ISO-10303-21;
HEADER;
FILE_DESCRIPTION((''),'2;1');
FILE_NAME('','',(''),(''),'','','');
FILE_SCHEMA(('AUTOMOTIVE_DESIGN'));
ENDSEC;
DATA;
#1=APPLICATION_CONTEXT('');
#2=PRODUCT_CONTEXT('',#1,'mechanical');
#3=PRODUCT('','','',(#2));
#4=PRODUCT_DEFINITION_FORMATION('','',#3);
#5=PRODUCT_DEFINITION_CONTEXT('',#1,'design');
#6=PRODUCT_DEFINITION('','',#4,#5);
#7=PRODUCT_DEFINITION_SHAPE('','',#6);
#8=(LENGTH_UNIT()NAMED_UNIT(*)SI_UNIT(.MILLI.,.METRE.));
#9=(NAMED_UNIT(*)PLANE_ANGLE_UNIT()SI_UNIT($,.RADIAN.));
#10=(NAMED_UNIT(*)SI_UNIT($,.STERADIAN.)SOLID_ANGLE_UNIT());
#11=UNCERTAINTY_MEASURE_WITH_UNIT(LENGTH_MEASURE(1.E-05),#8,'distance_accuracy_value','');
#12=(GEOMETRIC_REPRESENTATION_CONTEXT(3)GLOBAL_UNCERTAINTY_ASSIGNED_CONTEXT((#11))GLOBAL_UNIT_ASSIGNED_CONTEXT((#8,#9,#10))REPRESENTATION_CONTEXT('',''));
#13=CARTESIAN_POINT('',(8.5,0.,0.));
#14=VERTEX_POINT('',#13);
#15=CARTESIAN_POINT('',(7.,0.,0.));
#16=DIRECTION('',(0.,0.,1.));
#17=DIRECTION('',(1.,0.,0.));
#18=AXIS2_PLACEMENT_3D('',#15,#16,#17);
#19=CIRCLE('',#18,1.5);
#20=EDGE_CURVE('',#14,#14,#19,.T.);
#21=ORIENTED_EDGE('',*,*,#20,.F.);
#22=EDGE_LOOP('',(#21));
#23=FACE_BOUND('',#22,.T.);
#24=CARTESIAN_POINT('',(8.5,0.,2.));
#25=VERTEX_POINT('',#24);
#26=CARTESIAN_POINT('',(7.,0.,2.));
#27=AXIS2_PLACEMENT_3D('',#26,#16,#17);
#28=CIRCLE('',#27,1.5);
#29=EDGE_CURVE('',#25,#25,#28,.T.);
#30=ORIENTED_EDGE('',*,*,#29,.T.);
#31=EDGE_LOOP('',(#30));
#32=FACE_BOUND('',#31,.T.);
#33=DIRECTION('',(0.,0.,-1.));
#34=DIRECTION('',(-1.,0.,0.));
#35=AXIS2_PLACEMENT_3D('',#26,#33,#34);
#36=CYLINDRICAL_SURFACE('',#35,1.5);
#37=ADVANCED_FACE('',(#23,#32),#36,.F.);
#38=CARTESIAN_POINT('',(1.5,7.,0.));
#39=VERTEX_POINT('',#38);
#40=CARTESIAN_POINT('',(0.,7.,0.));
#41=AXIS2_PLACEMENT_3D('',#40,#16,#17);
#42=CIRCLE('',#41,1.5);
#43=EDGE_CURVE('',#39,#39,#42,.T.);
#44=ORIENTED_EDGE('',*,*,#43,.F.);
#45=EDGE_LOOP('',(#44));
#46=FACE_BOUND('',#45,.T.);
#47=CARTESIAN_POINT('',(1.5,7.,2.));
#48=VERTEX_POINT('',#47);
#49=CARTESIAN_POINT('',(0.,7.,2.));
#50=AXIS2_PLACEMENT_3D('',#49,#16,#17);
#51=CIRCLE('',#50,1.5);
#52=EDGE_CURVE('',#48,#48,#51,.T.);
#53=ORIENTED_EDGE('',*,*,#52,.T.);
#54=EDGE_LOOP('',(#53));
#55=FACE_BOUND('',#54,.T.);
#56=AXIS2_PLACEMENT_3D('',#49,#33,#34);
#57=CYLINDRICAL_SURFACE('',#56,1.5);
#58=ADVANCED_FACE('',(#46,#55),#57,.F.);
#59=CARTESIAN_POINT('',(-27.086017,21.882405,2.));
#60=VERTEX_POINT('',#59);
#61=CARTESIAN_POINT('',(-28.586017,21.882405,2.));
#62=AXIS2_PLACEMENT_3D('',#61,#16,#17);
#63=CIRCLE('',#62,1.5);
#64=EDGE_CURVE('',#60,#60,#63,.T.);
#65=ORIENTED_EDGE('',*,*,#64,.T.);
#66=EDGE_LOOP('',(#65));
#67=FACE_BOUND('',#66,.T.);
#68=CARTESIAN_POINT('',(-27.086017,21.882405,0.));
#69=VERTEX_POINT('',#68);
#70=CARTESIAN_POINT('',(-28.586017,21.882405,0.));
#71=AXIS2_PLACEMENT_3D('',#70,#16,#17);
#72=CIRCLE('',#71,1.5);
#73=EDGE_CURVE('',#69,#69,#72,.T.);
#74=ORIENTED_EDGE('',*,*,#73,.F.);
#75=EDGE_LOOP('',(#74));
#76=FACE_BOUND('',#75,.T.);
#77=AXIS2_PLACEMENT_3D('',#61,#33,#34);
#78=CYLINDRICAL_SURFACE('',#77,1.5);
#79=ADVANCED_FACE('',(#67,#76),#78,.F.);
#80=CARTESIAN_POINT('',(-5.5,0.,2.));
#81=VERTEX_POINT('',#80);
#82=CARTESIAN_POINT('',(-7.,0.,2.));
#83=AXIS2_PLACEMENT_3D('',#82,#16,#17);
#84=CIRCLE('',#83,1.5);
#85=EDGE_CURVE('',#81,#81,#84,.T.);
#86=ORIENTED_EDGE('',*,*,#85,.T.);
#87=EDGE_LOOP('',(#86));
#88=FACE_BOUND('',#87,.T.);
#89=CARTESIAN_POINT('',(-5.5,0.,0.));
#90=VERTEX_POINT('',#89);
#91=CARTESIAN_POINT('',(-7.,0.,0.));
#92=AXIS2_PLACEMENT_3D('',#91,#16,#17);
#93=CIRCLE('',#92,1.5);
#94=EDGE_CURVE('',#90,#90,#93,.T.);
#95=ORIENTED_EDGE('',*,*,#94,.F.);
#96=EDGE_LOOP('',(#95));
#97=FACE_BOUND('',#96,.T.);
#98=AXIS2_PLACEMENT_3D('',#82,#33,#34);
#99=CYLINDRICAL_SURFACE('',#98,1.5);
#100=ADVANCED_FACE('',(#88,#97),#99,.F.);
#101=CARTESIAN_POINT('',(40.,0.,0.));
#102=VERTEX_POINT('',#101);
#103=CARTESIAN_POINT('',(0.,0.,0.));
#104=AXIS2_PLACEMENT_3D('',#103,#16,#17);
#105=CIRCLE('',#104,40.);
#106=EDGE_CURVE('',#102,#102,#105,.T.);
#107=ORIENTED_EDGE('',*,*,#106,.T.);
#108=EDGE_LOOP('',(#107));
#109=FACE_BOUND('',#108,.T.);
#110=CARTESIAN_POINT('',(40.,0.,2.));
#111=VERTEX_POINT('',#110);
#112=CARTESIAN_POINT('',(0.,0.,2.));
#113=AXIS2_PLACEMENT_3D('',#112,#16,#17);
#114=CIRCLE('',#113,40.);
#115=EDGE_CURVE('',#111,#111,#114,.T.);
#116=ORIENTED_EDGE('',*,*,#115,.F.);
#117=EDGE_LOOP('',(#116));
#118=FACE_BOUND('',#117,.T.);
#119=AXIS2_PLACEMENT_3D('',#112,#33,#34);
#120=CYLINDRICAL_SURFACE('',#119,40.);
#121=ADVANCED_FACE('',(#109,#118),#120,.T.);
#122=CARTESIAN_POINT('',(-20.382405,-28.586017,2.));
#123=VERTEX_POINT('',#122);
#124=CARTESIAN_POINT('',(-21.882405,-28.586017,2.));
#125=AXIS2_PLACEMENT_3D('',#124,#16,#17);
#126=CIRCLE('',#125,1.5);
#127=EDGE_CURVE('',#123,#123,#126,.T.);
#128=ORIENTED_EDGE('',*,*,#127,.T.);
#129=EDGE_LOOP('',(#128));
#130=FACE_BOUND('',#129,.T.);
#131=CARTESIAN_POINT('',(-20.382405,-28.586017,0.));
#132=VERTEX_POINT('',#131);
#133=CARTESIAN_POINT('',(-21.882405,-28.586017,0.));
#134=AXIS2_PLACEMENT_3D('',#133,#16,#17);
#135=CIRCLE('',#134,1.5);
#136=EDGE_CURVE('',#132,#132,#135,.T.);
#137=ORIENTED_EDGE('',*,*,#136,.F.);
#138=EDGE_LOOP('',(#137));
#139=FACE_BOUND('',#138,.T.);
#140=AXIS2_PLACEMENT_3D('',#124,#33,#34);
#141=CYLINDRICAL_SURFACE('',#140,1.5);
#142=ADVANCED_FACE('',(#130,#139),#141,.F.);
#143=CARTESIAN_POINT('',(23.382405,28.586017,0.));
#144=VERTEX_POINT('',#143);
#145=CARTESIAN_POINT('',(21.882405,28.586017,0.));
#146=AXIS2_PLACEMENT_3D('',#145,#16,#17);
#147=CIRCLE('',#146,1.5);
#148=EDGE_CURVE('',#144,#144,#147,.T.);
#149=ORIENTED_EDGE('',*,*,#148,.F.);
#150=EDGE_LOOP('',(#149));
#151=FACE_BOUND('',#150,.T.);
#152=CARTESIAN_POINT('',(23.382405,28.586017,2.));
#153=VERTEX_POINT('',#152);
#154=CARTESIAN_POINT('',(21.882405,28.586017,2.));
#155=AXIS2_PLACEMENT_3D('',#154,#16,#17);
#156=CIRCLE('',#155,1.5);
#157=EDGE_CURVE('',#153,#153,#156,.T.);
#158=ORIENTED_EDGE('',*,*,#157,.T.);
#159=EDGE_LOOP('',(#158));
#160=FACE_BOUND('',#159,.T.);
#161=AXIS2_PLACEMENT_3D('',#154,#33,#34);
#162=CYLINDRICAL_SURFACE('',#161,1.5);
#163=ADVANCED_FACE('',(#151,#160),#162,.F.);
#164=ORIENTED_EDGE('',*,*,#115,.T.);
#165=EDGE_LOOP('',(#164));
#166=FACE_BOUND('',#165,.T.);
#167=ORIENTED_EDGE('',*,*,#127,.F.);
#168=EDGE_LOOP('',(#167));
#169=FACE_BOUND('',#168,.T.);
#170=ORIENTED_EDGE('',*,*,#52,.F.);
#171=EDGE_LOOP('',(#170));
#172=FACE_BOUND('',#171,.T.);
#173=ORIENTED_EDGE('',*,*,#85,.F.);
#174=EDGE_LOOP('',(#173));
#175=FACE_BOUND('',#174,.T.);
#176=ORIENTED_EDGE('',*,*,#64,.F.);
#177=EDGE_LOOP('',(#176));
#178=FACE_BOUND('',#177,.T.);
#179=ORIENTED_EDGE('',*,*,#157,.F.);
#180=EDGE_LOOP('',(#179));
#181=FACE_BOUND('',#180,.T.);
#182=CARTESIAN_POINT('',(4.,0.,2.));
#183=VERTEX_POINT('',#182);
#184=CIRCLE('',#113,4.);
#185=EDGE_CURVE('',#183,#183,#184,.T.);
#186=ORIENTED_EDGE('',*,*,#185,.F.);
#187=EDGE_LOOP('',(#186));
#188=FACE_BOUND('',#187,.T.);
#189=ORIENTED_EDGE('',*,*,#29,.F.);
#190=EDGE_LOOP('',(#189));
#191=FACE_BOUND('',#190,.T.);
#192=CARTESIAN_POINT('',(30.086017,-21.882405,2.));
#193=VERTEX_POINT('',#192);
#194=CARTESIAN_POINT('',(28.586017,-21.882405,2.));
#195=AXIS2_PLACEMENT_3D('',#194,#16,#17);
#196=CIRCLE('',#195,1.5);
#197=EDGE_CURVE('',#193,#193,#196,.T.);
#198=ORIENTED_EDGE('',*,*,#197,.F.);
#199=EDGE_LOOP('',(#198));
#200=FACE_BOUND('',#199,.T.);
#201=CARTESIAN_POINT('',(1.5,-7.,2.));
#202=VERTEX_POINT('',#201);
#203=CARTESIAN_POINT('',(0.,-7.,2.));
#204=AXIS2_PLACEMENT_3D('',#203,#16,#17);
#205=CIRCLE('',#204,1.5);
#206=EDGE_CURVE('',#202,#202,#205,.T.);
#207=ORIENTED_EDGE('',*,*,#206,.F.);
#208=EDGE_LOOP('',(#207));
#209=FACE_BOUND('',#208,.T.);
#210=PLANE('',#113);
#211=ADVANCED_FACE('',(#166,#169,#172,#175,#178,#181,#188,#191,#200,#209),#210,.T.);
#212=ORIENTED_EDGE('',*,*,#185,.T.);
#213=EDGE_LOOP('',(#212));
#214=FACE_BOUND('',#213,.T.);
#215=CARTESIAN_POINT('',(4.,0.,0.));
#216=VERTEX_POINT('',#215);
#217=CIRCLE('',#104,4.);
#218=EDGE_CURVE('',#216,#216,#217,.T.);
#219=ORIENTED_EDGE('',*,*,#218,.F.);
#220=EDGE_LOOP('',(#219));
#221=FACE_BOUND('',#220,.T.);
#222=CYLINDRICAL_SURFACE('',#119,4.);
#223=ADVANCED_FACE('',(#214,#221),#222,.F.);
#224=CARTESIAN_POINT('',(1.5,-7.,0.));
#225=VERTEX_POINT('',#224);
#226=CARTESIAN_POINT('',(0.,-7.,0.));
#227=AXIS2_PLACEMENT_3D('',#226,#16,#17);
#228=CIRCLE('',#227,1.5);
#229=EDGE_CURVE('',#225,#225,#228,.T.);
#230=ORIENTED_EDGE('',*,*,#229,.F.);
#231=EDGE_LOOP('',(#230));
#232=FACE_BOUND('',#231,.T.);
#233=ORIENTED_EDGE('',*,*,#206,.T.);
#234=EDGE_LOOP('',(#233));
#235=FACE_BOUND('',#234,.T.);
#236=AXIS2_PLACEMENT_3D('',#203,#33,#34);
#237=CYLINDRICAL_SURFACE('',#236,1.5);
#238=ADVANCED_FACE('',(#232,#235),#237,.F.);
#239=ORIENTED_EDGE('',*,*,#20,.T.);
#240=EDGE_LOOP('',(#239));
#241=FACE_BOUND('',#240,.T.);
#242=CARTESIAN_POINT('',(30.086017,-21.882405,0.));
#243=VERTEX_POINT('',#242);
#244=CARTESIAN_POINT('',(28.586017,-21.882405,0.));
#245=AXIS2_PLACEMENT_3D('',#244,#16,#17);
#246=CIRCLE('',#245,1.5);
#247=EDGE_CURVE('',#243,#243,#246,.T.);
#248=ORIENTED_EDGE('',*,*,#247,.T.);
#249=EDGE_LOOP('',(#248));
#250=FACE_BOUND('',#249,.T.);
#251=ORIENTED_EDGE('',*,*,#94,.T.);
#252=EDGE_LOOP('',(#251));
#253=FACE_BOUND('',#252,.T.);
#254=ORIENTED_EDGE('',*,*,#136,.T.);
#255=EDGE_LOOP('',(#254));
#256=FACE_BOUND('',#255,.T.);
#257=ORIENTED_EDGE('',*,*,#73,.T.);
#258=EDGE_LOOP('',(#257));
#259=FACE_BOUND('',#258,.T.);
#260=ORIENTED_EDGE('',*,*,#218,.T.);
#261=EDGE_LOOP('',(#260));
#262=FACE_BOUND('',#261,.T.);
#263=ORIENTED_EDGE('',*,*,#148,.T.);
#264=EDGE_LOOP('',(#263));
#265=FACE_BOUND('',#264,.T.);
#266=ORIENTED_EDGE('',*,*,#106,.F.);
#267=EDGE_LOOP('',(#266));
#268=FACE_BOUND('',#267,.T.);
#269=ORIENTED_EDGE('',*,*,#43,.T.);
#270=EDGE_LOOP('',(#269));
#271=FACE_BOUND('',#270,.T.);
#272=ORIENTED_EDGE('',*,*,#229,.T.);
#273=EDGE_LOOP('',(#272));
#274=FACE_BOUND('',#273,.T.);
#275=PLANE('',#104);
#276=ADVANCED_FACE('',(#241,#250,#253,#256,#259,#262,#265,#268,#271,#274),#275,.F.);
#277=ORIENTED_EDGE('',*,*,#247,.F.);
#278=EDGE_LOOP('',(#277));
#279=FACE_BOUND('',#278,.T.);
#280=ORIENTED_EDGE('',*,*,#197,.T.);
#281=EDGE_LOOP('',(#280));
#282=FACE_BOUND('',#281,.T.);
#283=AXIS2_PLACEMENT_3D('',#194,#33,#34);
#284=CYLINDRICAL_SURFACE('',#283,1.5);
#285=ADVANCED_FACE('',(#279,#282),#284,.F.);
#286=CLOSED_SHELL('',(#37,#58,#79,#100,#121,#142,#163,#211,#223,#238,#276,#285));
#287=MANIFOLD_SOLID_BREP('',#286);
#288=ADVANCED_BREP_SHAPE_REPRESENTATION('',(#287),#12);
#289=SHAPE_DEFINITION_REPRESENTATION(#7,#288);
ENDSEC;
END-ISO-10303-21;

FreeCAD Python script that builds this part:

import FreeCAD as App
import Part
import Sketcher
from FreeCAD import Vector
Q = App.Units.Quantity

doc = App.newDocument("Part")
params = doc.addObject("Spreadsheet::Sheet", "Params")
for row, (alias, value) in enumerate([
    ("sketch1_diameter", "80 mm"),
    ("sketch1_diameter2", "3 mm"),
    ("sketch1_diameter3", "8 mm"),
    ("pad1_length", "2 mm"),
], start=1):
    params.set(f"A{row}", alias)
    params.set(f"B{row}", "=" + value)
    params.setAlias(f"B{row}", alias)

body = doc.addObject("PartDesign::Body", "Body")

sketch1 = body.newObject("Sketcher::SketchObject", "Sketch")
sketch1.AttachmentSupport = (doc.getObject("XY_Plane"), [""])
sketch1.MapMode = "FlatFace"
sketch1.addGeometry([
    Part.Circle(Vector(0, 0, 0), Vector(0, 0, 1), 40),
    Part.Circle(Vector(-21.882405, -28.586017, 0), Vector(0, 0, 1), 1.5),
    Part.Circle(Vector(28.586017, -21.882405, 0), Vector(0, 0, 1), 1.5),
    Part.Circle(Vector(0, -7, 0), Vector(0, 0, 1), 1.5),
    Part.Circle(Vector(-7, 0, 0), Vector(0, 0, 1), 1.5),
    Part.Circle(Vector(-28.586017, 21.882405, 0), Vector(0, 0, 1), 1.5),
    Part.Circle(Vector(0, 0, 0), Vector(0, 0, 1), 4),
    Part.Circle(Vector(7, 0, 0), Vector(0, 0, 1), 1.5),
    Part.Circle(Vector(0, 7, 0), Vector(0, 0, 1), 1.5),
    Part.Circle(Vector(21.882405, 28.586017, 0), Vector(0, 0, 1), 1.5),
], False)
sketch1.addConstraint([
    Sketcher.Constraint("Coincident", 0, 3, -1, 1),
    Sketcher.Constraint("Coincident", 6, 3, -1, 1),
    Sketcher.Constraint("Equal", 1, 2),
    Sketcher.Constraint("Equal", 2, 3),
    Sketcher.Constraint("Equal", 3, 4),
    Sketcher.Constraint("Equal", 4, 5),
    Sketcher.Constraint("Equal", 5, 7),
    Sketcher.Constraint("Equal", 7, 8),
    Sketcher.Constraint("Equal", 8, 9),
    Sketcher.Constraint("Symmetric", 2, 3, 5, 3, -1, 1),
    Sketcher.Constraint("Symmetric", 4, 3, 7, 3, -1, 1),
    Sketcher.Constraint("Symmetric", 3, 3, 8, 3, -1, 1),
    Sketcher.Constraint("Symmetric", 1, 3, 9, 3, -1, 1),
    Sketcher.Constraint("PointOnObject", 3, 3, -2),
    Sketcher.Constraint("PointOnObject", 4, 3, -1),
    Sketcher.Constraint("Diameter", 0, Q("80 mm")),
    Sketcher.Constraint("Diameter", 1, Q("3 mm")),
    Sketcher.Constraint("Diameter", 6, Q("8 mm")),
    Sketcher.Constraint("DistanceY", 3, 3, -1, 1, Q("7 mm")),
    Sketcher.Constraint("DistanceX", 4, 3, -1, 1, Q("7 mm")),
    Sketcher.Constraint("DistanceX", 1, 3, 2, 3, Q("50.468422 mm")),
    Sketcher.Constraint("DistanceY", 1, 3, 2, 3, Q("6.703612 mm")),
    Sketcher.Constraint("DistanceX", 5, 3, 1, 3, Q("6.703612 mm")),
    Sketcher.Constraint("DistanceY", 1, 3, 5, 3, Q("50.468422 mm")),
])
sketch1.setExpression("Constraints[15]", "Params.sketch1_diameter")
sketch1.setExpression("Constraints[16]", "Params.sketch1_diameter2")
sketch1.setExpression("Constraints[17]", "Params.sketch1_diameter3")
pad1 = body.newObject("PartDesign::Pad", "Pad")
pad1.Profile = sketch1
pad1.setExpression("Length", "Params.pad1_length")

doc.recompute()
